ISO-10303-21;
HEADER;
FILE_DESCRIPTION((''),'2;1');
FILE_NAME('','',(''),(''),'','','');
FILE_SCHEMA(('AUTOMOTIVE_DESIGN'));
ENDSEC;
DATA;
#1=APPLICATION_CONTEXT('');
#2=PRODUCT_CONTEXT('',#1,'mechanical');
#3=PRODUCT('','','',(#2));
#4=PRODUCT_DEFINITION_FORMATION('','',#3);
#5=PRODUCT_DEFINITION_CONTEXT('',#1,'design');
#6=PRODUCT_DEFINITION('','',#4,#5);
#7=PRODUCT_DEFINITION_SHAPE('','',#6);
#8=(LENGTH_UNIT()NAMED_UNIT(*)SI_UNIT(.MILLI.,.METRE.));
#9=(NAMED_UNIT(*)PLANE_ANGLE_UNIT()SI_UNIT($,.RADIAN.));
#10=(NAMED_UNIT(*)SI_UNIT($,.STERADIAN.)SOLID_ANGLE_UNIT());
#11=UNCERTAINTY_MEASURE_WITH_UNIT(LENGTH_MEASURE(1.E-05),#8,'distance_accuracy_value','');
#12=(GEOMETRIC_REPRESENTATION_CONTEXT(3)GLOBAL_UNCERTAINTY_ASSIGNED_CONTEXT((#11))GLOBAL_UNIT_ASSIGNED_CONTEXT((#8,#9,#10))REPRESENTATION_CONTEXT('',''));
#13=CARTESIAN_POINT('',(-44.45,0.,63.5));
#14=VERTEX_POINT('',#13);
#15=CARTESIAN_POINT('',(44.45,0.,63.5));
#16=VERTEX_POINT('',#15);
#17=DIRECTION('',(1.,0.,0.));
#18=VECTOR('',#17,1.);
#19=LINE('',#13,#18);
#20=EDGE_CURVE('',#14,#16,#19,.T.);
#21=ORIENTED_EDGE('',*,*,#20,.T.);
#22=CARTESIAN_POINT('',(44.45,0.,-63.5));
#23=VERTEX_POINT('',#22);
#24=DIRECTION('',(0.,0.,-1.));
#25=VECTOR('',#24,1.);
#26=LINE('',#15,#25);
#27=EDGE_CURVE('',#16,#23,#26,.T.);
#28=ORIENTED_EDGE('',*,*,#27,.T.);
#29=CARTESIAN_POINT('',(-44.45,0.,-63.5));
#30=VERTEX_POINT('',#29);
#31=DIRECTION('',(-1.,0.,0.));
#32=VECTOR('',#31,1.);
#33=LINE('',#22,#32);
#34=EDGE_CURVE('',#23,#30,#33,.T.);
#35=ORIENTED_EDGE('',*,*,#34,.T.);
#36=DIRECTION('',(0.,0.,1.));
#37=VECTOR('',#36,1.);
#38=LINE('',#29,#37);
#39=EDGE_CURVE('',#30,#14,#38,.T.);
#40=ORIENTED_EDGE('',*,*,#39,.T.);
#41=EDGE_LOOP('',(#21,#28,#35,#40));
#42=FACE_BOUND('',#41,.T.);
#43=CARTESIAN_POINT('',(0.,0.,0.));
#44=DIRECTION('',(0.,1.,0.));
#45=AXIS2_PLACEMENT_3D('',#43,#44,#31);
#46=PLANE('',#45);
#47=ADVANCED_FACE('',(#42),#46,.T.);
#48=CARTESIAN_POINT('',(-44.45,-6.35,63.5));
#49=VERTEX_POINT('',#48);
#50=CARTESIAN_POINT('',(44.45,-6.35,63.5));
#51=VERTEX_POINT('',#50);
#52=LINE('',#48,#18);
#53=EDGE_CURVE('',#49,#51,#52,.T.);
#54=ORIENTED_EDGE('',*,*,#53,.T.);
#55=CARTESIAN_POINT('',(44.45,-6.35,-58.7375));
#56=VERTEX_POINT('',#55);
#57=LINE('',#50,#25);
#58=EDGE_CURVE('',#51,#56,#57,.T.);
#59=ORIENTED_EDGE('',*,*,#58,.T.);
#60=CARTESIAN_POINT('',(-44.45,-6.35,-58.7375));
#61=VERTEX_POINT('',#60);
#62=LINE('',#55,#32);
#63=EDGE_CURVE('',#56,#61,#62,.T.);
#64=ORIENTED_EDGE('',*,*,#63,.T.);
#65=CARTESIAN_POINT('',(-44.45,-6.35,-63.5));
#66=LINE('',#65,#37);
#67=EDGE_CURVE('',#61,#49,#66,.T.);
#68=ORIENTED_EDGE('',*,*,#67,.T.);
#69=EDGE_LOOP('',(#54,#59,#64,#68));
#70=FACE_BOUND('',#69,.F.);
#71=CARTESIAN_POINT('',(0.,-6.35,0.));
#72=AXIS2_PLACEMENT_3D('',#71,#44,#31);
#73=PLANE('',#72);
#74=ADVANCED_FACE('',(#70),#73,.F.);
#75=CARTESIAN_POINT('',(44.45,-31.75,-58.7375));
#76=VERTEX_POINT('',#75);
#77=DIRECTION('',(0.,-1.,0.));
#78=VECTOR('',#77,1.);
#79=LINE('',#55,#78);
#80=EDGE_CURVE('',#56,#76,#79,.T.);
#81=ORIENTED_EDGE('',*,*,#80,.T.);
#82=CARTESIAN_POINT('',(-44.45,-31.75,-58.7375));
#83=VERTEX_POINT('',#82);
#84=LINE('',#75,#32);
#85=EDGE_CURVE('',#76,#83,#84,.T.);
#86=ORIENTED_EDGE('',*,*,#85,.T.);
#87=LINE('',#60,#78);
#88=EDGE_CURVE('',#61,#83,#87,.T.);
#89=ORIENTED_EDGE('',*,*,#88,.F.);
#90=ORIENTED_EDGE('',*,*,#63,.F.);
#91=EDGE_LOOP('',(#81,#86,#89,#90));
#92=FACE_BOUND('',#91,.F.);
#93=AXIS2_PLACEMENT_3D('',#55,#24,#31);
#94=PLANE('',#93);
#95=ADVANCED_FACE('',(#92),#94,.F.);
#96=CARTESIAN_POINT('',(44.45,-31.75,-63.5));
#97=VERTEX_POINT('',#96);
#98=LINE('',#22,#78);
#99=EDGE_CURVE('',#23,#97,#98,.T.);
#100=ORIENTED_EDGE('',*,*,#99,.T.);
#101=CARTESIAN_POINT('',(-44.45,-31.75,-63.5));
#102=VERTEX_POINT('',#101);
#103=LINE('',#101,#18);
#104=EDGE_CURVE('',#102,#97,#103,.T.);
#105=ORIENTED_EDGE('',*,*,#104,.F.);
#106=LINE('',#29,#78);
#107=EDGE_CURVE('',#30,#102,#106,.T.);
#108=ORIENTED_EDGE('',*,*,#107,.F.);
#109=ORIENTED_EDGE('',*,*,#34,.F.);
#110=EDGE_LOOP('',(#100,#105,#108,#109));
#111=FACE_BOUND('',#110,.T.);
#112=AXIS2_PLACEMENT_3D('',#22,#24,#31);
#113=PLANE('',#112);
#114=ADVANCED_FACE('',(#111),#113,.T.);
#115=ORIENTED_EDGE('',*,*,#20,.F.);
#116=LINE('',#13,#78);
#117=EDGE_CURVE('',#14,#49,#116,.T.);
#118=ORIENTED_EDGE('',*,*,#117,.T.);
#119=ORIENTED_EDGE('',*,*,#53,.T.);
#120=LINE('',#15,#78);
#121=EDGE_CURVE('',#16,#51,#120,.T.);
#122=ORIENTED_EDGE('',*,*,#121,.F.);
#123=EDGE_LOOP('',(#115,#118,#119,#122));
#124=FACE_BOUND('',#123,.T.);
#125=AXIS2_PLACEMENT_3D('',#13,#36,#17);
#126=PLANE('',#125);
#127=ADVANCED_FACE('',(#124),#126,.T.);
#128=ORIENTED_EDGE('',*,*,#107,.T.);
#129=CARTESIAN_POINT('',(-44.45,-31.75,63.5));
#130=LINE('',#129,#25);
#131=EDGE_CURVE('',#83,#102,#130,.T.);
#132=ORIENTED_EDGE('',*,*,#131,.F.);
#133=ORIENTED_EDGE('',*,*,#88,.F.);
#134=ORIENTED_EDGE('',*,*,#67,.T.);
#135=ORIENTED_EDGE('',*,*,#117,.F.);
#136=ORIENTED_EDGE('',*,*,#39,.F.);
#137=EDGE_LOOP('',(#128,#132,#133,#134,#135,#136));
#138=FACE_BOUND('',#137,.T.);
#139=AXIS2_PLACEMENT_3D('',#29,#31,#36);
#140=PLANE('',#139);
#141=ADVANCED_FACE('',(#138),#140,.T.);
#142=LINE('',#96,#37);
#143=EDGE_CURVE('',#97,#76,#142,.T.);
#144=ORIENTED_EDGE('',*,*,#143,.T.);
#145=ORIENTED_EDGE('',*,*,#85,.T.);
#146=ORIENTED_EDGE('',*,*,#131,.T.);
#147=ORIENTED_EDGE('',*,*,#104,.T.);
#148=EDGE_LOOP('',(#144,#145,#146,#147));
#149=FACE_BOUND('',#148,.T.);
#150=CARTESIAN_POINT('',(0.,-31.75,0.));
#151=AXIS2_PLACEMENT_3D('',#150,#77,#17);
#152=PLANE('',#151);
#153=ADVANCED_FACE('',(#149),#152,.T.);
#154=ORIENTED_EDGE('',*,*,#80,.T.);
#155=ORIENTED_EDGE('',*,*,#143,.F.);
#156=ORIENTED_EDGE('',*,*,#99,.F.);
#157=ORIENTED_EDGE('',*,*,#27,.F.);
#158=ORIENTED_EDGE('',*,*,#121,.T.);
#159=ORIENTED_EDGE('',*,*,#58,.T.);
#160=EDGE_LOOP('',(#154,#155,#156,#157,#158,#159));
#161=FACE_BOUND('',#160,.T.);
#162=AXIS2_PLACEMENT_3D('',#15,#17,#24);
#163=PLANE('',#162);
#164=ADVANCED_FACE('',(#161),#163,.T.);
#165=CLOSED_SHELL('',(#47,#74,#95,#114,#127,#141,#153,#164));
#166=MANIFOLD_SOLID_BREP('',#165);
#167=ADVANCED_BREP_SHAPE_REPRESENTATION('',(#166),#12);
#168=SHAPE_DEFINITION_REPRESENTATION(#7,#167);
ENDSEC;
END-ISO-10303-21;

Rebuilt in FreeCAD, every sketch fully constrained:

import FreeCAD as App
import Part
import Sketcher
Q = App.Units.Quantity

doc = App.newDocument("Part")
body = doc.addObject("PartDesign::Body", "Body")

sketch1 = body.newObject("Sketcher::SketchObject", "Sketch")
sketch1.AttachmentSupport = (doc.getObject("XZ_Plane"), [""])
sketch1.MapMode = "FlatFace"
sketch1.addGeometry(Part.LineSegment(App.Vector(-44, -64, 0), App.Vector(-44, 64, 0)), False)
sketch1.addGeometry(Part.LineSegment(App.Vector(-44, 64, 0), App.Vector(44, 64, 0)), False)
sketch1.addGeometry(Part.LineSegment(App.Vector(44, 64, 0), App.Vector(44, -64, 0)), False)
sketch1.addGeometry(Part.LineSegment(App.Vector(44, -64, 0), App.Vector(-44, -64, 0)), False)
sketch1.addConstraint(Sketcher.Constraint("Coincident", 0, 2, 1, 1))
sketch1.addConstraint(Sketcher.Constraint("Coincident", 1, 2, 2, 1))
sketch1.addConstraint(Sketcher.Constraint("Coincident", 2, 2, 3, 1))
sketch1.addConstraint(Sketcher.Constraint("Coincident", 3, 2, 0, 1))
sketch1.addConstraint(Sketcher.Constraint("Vertical", 0))
sketch1.addConstraint(Sketcher.Constraint("Horizontal", 1))
sketch1.addConstraint(Sketcher.Constraint("Vertical", 2))
sketch1.addConstraint(Sketcher.Constraint("Horizontal", 3))
sketch1.addConstraint(Sketcher.Constraint("Symmetric", 0, 2, 2, 2, -1, 1))
sketch1.addConstraint(Sketcher.Constraint("DistanceY", 0, 1, 0, 2, Q("5 in")))
sketch1.addConstraint(Sketcher.Constraint("DistanceX", 1, 1, 1, 2, Q("3.5 in")))
pad1 = body.newObject("PartDesign::Pad", "Pad")
pad1.Profile = sketch1
pad1.Length = Q("0.25 in")

sketch2 = body.newObject("Sketcher::SketchObject", "Sketch001")
sketch2.AttachmentSupport = (doc.getObject("XZ_Plane"), [""])
sketch2.MapMode = "FlatFace"
sketch2.AttachmentOffset = App.Placement(App.Vector(0, 0, 0.25 * 25.4), App.Rotation())
sketch2.addGeometry(Part.LineSegment(App.Vector(44.5, -58.7, 0), App.Vector(-44.5, -58.7, 0)), False)
sketch2.addGeometry(Part.LineSegment(App.Vector(-44.5, -58.7, 0), App.Vector(-44.5, -63.5, 0)), False)
sketch2.addGeometry(Part.LineSegment(App.Vector(-44.5, -63.5, 0), App.Vector(44.5, -63.5, 0)), False)
sketch2.addGeometry(Part.LineSegment(App.Vector(44.5, -63.5, 0), App.Vector(44.5, -58.7, 0)), False)
sketch2.addConstraint(Sketcher.Constraint("Coincident", 0, 2, 1, 1))
sketch2.addConstraint(Sketcher.Constraint("Coincident", 1, 2, 2, 1))
sketch2.addConstraint(Sketcher.Constraint("Coincident", 2, 2, 3, 1))
sketch2.addConstraint(Sketcher.Constraint("Coincident", 3, 2, 0, 1))
sketch2.addConstraint(Sketcher.Constraint("Horizontal", 0))
sketch2.addConstraint(Sketcher.Constraint("Vertical", 1))
sketch2.addConstraint(Sketcher.Constraint("Horizontal", 2))
sketch2.addConstraint(Sketcher.Constraint("Vertical", 3))
sketch2.addConstraint(Sketcher.Constraint("DistanceY", 1, 2, 1, 1, Q("0.1875 in")))
sketch2.addConstraint(Sketcher.Constraint("DistanceX", 0, 2, 0, 1, Q("3.5 in")))
sketch2.addConstraint(Sketcher.Constraint("DistanceY", 1, 2, -1, 1, Q("2.5 in")))
sketch2.addConstraint(Sketcher.Constraint("DistanceX", 0, 2, -1, 1, Q("1.75 in")))
pad2 = body.newObject("PartDesign::Pad", "Pad001")
pad2.Profile = sketch2
pad2.Length = Q("1 in")

doc.recompute()
